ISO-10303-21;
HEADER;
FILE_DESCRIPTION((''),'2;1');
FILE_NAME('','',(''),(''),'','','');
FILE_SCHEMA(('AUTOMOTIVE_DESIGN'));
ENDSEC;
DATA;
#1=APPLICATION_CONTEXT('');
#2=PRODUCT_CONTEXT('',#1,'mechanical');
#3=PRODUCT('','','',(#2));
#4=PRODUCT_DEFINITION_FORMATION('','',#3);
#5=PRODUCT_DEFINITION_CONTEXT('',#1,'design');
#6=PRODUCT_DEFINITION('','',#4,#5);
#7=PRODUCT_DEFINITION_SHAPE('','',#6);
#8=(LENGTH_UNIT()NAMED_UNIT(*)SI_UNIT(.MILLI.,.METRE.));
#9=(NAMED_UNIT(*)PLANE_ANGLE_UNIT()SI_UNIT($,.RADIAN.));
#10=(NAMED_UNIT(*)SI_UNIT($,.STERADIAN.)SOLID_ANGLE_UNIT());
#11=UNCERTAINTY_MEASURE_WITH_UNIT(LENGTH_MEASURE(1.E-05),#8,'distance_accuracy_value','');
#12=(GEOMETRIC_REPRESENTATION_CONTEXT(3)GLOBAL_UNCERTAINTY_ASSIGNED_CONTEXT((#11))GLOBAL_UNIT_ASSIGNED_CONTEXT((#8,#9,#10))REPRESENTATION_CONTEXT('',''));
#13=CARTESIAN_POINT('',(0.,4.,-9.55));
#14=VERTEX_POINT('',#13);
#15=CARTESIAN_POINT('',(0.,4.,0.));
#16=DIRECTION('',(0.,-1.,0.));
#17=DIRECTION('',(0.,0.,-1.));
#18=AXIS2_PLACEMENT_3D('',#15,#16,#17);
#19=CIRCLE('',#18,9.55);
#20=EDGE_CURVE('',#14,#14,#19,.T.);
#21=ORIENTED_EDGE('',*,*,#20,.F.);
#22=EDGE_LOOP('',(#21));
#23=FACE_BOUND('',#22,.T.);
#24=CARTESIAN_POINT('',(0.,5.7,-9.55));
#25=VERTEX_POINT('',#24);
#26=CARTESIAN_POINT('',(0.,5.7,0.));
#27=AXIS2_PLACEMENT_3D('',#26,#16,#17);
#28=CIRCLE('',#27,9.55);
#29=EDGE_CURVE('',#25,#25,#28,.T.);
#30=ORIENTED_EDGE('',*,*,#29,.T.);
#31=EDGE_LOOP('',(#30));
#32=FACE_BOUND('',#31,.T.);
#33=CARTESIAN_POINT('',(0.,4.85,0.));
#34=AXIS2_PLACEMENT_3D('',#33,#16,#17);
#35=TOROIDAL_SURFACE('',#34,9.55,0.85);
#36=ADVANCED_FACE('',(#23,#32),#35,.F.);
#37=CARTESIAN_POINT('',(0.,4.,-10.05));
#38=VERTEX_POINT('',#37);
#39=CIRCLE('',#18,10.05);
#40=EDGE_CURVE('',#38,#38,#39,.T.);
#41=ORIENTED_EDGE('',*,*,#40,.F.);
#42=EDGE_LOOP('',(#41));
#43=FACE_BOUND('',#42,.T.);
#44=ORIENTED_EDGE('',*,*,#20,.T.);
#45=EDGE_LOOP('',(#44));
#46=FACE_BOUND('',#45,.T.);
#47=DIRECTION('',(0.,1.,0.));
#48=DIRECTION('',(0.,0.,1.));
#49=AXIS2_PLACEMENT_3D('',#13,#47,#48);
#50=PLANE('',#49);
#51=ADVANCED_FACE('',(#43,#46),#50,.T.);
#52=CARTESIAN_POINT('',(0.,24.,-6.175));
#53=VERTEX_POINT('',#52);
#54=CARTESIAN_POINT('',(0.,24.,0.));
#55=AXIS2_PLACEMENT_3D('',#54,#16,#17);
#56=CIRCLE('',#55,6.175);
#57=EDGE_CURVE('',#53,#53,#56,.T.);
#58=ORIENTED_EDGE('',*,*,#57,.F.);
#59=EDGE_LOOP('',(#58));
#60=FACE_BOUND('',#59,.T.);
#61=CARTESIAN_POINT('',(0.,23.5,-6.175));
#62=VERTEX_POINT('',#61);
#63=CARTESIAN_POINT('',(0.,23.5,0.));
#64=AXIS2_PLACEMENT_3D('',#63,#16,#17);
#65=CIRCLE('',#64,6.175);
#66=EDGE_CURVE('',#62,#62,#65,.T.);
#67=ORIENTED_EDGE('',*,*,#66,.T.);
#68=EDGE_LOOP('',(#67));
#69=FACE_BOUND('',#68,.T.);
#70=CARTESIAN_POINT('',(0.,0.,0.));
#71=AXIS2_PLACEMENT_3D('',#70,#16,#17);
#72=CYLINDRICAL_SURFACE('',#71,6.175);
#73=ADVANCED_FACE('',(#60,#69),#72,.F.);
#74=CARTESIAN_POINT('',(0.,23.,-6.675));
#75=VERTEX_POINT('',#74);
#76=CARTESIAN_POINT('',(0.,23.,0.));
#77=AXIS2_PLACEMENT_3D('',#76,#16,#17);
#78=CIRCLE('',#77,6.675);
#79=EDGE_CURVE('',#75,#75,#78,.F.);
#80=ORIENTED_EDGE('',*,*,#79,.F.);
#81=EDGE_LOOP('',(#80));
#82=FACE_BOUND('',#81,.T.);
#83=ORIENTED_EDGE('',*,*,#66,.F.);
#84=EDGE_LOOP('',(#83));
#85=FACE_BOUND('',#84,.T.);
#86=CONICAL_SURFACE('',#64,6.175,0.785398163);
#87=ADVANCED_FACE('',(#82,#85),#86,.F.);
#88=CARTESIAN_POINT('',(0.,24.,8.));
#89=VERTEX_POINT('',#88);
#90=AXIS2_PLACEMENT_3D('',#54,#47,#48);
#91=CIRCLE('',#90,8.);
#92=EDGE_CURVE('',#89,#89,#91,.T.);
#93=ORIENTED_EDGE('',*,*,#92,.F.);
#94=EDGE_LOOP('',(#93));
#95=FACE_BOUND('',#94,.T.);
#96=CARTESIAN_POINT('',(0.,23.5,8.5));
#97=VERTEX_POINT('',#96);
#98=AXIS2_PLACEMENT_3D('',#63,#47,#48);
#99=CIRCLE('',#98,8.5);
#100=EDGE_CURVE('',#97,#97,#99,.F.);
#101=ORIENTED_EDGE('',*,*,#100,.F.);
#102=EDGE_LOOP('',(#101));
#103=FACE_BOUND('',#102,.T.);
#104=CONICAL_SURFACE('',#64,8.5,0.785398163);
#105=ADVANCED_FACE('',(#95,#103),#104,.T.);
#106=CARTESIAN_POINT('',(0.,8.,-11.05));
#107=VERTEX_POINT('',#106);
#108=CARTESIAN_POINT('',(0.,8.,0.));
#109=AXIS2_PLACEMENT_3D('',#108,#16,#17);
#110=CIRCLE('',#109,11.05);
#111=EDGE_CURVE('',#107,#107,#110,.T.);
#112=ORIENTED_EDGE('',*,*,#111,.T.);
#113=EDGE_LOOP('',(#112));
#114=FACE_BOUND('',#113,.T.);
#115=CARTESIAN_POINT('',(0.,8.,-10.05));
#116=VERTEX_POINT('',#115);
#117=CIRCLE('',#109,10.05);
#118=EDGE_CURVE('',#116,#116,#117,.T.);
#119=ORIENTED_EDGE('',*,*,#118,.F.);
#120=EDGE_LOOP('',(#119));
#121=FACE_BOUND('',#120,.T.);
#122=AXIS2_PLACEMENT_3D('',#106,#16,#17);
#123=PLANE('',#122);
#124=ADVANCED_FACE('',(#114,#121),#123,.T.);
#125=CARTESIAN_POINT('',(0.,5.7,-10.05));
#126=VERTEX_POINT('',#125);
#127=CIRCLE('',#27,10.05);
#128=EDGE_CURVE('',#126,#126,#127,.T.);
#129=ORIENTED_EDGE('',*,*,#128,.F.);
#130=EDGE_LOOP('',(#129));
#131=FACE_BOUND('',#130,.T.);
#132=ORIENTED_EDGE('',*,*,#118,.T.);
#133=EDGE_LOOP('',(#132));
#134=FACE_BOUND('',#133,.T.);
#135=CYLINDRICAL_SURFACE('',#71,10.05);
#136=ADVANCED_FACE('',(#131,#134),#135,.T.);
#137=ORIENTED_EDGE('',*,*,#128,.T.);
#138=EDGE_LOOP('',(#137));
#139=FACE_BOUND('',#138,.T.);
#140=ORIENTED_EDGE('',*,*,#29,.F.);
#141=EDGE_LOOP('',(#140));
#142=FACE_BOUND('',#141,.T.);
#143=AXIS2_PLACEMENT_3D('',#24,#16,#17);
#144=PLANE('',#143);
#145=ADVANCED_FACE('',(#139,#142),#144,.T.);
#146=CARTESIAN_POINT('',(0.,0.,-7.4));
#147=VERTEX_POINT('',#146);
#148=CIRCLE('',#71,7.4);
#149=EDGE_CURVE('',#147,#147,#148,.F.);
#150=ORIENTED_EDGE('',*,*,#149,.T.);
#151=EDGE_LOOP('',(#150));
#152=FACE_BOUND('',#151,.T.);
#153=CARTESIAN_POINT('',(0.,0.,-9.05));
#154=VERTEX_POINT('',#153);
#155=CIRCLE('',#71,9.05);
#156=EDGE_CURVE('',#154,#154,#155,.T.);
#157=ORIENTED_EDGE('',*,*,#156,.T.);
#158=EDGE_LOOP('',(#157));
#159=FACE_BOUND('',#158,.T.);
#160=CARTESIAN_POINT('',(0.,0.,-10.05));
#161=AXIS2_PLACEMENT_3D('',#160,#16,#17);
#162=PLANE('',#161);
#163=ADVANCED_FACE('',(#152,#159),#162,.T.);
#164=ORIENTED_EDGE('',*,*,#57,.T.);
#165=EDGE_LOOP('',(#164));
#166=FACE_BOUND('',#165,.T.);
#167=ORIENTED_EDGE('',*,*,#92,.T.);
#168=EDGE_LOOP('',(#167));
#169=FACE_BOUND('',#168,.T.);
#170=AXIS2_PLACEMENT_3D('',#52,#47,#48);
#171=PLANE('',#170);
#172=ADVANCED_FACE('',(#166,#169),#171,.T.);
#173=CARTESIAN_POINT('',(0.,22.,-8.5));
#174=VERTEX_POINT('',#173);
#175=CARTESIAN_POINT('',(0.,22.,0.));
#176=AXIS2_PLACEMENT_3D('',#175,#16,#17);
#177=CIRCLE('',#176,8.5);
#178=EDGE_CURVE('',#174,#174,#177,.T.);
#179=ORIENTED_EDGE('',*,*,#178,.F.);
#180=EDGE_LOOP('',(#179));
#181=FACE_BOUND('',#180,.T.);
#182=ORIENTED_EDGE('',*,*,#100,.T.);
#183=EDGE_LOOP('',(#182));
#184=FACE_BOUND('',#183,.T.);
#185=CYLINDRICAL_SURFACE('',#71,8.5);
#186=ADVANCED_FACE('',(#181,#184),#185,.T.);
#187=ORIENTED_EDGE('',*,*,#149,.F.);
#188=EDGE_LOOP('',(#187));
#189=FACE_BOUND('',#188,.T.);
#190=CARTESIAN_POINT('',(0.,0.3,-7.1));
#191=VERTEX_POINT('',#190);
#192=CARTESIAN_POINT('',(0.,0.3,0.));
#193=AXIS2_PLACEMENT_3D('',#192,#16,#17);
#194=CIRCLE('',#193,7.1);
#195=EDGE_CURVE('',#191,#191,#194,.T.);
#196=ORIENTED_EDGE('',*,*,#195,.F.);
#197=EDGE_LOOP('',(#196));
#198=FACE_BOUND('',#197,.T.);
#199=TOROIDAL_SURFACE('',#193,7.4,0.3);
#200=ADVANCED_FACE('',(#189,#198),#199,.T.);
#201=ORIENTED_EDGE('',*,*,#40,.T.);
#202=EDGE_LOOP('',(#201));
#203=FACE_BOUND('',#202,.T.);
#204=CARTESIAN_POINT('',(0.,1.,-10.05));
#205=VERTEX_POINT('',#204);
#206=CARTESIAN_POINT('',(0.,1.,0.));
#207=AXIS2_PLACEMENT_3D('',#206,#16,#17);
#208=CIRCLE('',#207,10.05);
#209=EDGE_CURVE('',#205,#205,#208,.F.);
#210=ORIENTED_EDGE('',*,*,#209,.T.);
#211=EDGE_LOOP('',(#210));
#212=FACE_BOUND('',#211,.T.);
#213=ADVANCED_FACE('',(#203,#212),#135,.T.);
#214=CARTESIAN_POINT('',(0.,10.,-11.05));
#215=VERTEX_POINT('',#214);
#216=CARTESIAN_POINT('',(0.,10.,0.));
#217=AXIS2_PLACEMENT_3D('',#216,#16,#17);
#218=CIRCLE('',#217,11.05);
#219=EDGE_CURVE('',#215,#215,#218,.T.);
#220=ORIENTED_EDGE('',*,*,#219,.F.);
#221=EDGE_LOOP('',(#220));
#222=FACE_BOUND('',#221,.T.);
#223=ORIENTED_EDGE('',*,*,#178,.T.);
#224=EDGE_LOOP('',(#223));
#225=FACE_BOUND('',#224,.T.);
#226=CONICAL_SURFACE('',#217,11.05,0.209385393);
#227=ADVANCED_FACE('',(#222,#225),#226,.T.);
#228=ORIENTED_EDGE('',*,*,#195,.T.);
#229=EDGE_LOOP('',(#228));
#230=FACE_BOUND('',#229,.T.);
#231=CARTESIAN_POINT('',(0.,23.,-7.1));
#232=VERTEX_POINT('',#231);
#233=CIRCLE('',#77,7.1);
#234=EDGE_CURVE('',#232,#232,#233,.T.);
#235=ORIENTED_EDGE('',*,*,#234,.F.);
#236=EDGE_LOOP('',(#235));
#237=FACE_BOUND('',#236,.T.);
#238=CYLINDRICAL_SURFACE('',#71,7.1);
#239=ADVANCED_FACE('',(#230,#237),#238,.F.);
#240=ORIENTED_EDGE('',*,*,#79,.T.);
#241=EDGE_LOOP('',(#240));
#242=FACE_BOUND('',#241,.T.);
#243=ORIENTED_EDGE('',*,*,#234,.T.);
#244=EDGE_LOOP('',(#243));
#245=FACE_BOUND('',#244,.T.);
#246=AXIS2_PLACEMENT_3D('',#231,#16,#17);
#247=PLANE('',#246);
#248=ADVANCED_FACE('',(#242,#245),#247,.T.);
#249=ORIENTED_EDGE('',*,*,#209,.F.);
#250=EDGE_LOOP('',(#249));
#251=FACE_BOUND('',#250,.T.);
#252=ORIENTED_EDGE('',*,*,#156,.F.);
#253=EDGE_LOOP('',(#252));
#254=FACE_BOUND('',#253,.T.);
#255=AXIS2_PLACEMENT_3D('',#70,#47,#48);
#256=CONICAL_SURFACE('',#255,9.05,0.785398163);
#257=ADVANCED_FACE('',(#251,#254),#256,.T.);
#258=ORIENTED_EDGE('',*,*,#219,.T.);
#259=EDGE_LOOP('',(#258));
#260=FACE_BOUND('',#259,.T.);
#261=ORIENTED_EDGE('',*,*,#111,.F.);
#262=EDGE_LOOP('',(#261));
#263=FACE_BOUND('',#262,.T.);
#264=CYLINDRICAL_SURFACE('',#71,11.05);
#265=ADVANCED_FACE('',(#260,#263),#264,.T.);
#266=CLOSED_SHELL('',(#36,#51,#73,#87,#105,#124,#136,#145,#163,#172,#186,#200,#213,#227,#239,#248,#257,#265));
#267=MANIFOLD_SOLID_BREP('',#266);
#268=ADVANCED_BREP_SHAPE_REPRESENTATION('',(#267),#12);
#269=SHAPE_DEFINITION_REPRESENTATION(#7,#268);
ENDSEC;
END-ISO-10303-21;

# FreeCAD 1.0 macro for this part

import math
import FreeCAD as App
import Part
import Sketcher


def edges_at(feature, points):
    """Names of the edges that pass closest to the given points."""
    edges = feature.Shape.Edges
    near = lambda p: min(range(len(edges)), key=lambda i: edges[i].distToShape(Part.Vertex(*p))[0])
    return sorted({f"Edge{near(p) + 1}" for p in points})

doc = App.newDocument("Part")
body = doc.addObject("PartDesign::Body", "Body")

# Sketch on YZ plane
sketch1 = body.newObject("Sketcher::SketchObject", "Sketch")
sketch1.AttachmentSupport = (doc.getObject("YZ_Plane"), [""])
sketch1.MapMode = "FlatFace"
sketch1.addGeometry([
    Part.LineSegment(App.Vector(23, -7.1, 0), App.Vector(0, -7.1, 0)),  # 0
    Part.LineSegment(App.Vector(0, -7.1, 0), App.Vector(0, -10.05, 0)),  # 1
    Part.LineSegment(App.Vector(0, -10.05, 0), App.Vector(4, -10.05, 0)),  # 2
    Part.LineSegment(App.Vector(4, -10.05, 0), App.Vector(4, -9.55, 0)),  # 3
    Part.ArcOfCircle(Part.Circle(App.Vector(4.85, -9.55, 0), App.Vector(0, 0, 1), 0.85), math.radians(0), math.radians(180)),  # 4
    Part.LineSegment(App.Vector(5.7, -9.55, 0), App.Vector(5.7, -10.05, 0)),  # 5
    Part.LineSegment(App.Vector(5.7, -10.05, 0), App.Vector(8, -10.05, 0)),  # 6
    Part.LineSegment(App.Vector(8, -10.05, 0), App.Vector(8, -11.05, 0)),  # 7
    Part.LineSegment(App.Vector(8, -11.05, 0), App.Vector(10, -11.05, 0)),  # 8
    Part.LineSegment(App.Vector(10, -11.05, 0), App.Vector(22, -8.5, 0)),  # 9
    Part.LineSegment(App.Vector(22, -8.5, 0), App.Vector(24, -8.5, 0)),  # 10
    Part.LineSegment(App.Vector(24, -8.5, 0), App.Vector(24, -6.175, 0)),  # 11
    Part.LineSegment(App.Vector(24, -6.175, 0), App.Vector(23, -6.175, 0)),  # 12
    Part.LineSegment(App.Vector(23, -6.175, 0), App.Vector(23, -7.1, 0)),  # 13
], False)
sketch1.addConstraint([
    Sketcher.Constraint("Coincident", 0, 2, 1, 1),
    Sketcher.Constraint("Coincident", 1, 2, 2, 1),
    Sketcher.Constraint("Coincident", 2, 2, 3, 1),
    Sketcher.Constraint("Tangent", 3, 2, 4, 2),
    Sketcher.Constraint("Tangent", 4, 1, 5, 1),
    Sketcher.Constraint("Coincident", 5, 2, 6, 1),
    Sketcher.Constraint("Coincident", 6, 2, 7, 1),
    Sketcher.Constraint("Coincident", 7, 2, 8, 1),
    Sketcher.Constraint("Coincident", 8, 2, 9, 1),
    Sketcher.Constraint("Coincident", 9, 2, 10, 1),
    Sketcher.Constraint("Coincident", 10, 2, 11, 1),
    Sketcher.Constraint("Coincident", 11, 2, 12, 1),
    Sketcher.Constraint("Coincident", 12, 2, 13, 1),
    Sketcher.Constraint("Coincident", 13, 2, 0, 1),
    Sketcher.Constraint("Horizontal", 0),
    Sketcher.Constraint("Vertical", 1),
    Sketcher.Constraint("Horizontal", 2),
    Sketcher.Constraint("Vertical", 3),
    Sketcher.Constraint("Vertical", 5),
    Sketcher.Constraint("Horizontal", 6),
    Sketcher.Constraint("Vertical", 7),
    Sketcher.Constraint("Horizontal", 8),
    Sketcher.Constraint("Horizontal", 10),
    Sketcher.Constraint("Vertical", 11),
    Sketcher.Constraint("Horizontal", 12),
    Sketcher.Constraint("Vertical", 13),
    Sketcher.Constraint("PointOnObject", 0, 2, -2),
    Sketcher.Constraint("Horizontal", 2, 2, 5, 2),
    Sketcher.Constraint("Equal", 8, 10),
    Sketcher.Constraint("Equal", 12, 7),
    Sketcher.Constraint("DistanceX", 0, 2, 0, 1, 23.0),
    Sketcher.Constraint("DistanceX", 2, 1, 2, 2, 4.0),
    Sketcher.Constraint("DistanceX", 8, 1, 8, 2, 2.0),
    Sketcher.Constraint("DistanceX", 12, 2, 12, 1, 1.0),
    Sketcher.Constraint("Radius", 4, 0.85),
    Sketcher.Constraint("DistanceX", 6, 1, 6, 2, 2.3),
    Sketcher.Constraint("DistanceY", 3, 1, 3, 2, 0.5),
    Sketcher.Constraint("DistanceY", 1, 2, 1, 1, 2.95),
    Sketcher.Constraint("DistanceY", 0, 2, -1, 1, 7.1),
    Sketcher.Constraint("DistanceY", 9, 2, -1, 1, 8.5),
    Sketcher.Constraint("DistanceY", 11, 1, 11, 2, 2.325),
])
revolution = body.newObject("PartDesign::Revolution", "Revolution")
revolution.Profile = sketch1
revolution.ReferenceAxis = (sketch1, ["H_Axis"])
revolution.Angle = 360
doc.recompute()

chamfer = body.newObject("PartDesign::Chamfer", "Chamfer")
chamfer.Base = (revolution, edges_at(revolution, [(0, 0, 10.05)]))
chamfer.Size = 1
doc.recompute()

chamfer2 = body.newObject("PartDesign::Chamfer", "Chamfer001")
chamfer2.Base = (chamfer, edges_at(chamfer, [(0, 24, 8.5)]))
chamfer2.Size = 0.5
doc.recompute()

fillet = body.newObject("PartDesign::Fillet", "Fillet")
fillet.Base = (chamfer2, edges_at(chamfer2, [(0, 0, 7.1)]))
fillet.Radius = 0.3
doc.recompute()

chamfer3 = body.newObject("PartDesign::Chamfer", "Chamfer002")
chamfer3.Base = (fillet, edges_at(fillet, [(0, 23, 6.175)]))
chamfer3.Size = 0.5

doc.recompute()
